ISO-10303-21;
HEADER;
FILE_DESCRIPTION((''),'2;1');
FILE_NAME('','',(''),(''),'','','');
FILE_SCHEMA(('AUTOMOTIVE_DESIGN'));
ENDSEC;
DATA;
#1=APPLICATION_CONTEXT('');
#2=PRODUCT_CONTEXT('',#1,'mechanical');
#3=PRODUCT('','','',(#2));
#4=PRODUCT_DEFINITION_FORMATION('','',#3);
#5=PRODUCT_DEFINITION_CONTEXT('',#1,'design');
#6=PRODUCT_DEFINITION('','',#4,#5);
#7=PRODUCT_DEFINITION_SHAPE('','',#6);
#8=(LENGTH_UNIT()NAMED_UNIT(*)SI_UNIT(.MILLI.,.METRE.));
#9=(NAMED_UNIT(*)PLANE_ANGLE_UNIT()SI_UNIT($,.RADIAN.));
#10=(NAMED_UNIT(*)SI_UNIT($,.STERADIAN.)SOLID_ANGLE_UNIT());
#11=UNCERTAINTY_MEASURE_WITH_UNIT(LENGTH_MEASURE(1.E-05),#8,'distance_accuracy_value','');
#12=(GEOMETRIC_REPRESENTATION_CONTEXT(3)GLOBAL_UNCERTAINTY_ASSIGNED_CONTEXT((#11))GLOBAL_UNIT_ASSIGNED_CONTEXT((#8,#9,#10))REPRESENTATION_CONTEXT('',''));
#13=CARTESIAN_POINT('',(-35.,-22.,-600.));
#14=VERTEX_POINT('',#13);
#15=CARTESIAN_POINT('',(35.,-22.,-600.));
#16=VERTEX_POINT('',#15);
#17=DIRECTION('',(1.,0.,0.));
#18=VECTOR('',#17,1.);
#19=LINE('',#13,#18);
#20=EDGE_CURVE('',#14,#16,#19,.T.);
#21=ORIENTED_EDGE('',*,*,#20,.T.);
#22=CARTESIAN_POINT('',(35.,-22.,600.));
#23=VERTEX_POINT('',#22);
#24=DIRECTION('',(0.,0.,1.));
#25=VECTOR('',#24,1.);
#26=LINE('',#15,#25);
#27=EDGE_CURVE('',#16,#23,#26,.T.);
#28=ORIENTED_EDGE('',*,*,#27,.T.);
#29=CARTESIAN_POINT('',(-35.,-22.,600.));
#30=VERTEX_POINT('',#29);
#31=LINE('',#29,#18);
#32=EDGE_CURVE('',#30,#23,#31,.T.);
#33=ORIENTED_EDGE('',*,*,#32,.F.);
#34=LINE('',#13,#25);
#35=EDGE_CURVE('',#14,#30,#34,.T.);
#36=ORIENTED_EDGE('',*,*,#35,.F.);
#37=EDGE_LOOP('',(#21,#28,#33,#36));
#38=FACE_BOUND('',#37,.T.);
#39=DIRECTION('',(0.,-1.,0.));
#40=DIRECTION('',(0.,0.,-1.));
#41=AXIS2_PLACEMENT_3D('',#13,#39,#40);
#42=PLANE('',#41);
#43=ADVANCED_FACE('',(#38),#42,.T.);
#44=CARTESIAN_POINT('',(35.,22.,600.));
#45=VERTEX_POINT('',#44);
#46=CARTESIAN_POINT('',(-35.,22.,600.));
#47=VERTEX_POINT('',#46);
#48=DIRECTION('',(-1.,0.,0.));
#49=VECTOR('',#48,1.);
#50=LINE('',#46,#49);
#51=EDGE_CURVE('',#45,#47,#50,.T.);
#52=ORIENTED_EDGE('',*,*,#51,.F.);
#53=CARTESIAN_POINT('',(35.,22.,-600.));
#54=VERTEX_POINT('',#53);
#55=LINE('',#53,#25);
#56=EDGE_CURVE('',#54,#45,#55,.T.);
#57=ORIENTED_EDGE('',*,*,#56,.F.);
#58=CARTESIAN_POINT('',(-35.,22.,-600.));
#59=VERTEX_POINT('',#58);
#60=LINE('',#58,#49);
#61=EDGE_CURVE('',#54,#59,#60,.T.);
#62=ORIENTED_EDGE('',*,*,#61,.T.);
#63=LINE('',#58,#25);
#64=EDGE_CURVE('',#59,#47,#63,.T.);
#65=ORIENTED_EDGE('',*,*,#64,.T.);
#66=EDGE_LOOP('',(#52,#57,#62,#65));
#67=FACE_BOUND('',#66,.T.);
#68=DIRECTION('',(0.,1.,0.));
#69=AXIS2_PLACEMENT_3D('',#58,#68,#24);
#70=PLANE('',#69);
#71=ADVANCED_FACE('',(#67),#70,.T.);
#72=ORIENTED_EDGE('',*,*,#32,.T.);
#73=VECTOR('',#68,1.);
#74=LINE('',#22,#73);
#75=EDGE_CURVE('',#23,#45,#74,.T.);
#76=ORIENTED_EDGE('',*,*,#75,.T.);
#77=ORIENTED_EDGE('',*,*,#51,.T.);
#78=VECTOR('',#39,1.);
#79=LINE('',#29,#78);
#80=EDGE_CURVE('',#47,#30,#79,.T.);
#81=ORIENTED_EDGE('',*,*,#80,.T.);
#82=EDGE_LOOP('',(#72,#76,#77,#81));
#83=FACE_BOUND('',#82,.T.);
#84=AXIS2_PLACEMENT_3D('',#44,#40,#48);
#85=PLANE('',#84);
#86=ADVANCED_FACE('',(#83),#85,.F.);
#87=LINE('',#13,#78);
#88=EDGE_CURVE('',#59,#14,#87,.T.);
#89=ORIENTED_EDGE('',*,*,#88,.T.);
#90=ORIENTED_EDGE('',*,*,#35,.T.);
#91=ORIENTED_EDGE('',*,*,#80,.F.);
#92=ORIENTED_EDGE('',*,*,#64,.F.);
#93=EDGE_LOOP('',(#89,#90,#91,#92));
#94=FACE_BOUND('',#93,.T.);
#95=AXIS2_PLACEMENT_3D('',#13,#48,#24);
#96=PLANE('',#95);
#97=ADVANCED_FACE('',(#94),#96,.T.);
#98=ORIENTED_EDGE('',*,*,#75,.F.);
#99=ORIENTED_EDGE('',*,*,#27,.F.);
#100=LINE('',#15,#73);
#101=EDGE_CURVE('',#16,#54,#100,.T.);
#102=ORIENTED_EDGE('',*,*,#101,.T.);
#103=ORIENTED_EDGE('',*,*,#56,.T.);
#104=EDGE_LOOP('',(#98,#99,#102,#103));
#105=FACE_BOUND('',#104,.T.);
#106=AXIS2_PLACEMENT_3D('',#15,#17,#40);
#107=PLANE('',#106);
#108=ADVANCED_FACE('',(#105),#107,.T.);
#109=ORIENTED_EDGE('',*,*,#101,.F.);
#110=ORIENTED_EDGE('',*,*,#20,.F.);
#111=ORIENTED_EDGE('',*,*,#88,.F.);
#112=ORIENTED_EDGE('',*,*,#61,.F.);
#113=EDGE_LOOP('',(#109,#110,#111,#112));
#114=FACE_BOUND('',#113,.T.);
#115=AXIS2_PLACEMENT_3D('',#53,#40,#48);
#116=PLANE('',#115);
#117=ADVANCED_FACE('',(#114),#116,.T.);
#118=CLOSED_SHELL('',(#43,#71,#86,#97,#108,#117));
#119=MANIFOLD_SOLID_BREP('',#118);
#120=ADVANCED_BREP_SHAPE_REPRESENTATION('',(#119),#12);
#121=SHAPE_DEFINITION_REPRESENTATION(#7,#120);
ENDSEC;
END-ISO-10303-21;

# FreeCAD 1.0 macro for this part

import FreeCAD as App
import Part
import Sketcher

V = App.Vector


def add_polygon(sketch, points):
    """Adds a closed chain of lines whose ends are joined by coincident constraints."""
    first, n = sketch.GeometryCount, len(points)
    for a, b in zip(points, points[1:] + points[:1]):
        sketch.addGeometry(Part.LineSegment(App.Vector(*a, 0), App.Vector(*b, 0)), False)
    for i in range(n):
        sketch.addConstraint(Sketcher.Constraint("Coincident", first + i, 2, first + (i + 1) % n, 1))

doc = App.newDocument("Part")
body = doc.addObject("PartDesign::Body", "Body")

sketch1 = body.newObject("Sketcher::SketchObject", "Sketch")
sketch1.AttachmentSupport = (doc.getObject("XY_Plane"), [""])
sketch1.MapMode = "FlatFace"
add_polygon(sketch1, [(-35, 22), (-35, -22), (35, -22), (35, 22)])
sketch1.addConstraint([
    Sketcher.Constraint("Vertical", 0),
    Sketcher.Constraint("Horizontal", 1),
    Sketcher.Constraint("Vertical", 2),
    Sketcher.Constraint("Horizontal", 3),
    Sketcher.Constraint("Symmetric", 0, 2, 2, 2, -1, 1),
    Sketcher.Constraint("DistanceX", 1, 1, 1, 2, 70.0),
    Sketcher.Constraint("DistanceY", 0, 2, 0, 1, 44.0),
])
pad1 = body.newObject("PartDesign::Pad", "Pad")
pad1.Profile = sketch1
pad1.Type = "TwoLengths"
pad1.Length = 600
pad1.Length2 = 600

doc.recompute()
